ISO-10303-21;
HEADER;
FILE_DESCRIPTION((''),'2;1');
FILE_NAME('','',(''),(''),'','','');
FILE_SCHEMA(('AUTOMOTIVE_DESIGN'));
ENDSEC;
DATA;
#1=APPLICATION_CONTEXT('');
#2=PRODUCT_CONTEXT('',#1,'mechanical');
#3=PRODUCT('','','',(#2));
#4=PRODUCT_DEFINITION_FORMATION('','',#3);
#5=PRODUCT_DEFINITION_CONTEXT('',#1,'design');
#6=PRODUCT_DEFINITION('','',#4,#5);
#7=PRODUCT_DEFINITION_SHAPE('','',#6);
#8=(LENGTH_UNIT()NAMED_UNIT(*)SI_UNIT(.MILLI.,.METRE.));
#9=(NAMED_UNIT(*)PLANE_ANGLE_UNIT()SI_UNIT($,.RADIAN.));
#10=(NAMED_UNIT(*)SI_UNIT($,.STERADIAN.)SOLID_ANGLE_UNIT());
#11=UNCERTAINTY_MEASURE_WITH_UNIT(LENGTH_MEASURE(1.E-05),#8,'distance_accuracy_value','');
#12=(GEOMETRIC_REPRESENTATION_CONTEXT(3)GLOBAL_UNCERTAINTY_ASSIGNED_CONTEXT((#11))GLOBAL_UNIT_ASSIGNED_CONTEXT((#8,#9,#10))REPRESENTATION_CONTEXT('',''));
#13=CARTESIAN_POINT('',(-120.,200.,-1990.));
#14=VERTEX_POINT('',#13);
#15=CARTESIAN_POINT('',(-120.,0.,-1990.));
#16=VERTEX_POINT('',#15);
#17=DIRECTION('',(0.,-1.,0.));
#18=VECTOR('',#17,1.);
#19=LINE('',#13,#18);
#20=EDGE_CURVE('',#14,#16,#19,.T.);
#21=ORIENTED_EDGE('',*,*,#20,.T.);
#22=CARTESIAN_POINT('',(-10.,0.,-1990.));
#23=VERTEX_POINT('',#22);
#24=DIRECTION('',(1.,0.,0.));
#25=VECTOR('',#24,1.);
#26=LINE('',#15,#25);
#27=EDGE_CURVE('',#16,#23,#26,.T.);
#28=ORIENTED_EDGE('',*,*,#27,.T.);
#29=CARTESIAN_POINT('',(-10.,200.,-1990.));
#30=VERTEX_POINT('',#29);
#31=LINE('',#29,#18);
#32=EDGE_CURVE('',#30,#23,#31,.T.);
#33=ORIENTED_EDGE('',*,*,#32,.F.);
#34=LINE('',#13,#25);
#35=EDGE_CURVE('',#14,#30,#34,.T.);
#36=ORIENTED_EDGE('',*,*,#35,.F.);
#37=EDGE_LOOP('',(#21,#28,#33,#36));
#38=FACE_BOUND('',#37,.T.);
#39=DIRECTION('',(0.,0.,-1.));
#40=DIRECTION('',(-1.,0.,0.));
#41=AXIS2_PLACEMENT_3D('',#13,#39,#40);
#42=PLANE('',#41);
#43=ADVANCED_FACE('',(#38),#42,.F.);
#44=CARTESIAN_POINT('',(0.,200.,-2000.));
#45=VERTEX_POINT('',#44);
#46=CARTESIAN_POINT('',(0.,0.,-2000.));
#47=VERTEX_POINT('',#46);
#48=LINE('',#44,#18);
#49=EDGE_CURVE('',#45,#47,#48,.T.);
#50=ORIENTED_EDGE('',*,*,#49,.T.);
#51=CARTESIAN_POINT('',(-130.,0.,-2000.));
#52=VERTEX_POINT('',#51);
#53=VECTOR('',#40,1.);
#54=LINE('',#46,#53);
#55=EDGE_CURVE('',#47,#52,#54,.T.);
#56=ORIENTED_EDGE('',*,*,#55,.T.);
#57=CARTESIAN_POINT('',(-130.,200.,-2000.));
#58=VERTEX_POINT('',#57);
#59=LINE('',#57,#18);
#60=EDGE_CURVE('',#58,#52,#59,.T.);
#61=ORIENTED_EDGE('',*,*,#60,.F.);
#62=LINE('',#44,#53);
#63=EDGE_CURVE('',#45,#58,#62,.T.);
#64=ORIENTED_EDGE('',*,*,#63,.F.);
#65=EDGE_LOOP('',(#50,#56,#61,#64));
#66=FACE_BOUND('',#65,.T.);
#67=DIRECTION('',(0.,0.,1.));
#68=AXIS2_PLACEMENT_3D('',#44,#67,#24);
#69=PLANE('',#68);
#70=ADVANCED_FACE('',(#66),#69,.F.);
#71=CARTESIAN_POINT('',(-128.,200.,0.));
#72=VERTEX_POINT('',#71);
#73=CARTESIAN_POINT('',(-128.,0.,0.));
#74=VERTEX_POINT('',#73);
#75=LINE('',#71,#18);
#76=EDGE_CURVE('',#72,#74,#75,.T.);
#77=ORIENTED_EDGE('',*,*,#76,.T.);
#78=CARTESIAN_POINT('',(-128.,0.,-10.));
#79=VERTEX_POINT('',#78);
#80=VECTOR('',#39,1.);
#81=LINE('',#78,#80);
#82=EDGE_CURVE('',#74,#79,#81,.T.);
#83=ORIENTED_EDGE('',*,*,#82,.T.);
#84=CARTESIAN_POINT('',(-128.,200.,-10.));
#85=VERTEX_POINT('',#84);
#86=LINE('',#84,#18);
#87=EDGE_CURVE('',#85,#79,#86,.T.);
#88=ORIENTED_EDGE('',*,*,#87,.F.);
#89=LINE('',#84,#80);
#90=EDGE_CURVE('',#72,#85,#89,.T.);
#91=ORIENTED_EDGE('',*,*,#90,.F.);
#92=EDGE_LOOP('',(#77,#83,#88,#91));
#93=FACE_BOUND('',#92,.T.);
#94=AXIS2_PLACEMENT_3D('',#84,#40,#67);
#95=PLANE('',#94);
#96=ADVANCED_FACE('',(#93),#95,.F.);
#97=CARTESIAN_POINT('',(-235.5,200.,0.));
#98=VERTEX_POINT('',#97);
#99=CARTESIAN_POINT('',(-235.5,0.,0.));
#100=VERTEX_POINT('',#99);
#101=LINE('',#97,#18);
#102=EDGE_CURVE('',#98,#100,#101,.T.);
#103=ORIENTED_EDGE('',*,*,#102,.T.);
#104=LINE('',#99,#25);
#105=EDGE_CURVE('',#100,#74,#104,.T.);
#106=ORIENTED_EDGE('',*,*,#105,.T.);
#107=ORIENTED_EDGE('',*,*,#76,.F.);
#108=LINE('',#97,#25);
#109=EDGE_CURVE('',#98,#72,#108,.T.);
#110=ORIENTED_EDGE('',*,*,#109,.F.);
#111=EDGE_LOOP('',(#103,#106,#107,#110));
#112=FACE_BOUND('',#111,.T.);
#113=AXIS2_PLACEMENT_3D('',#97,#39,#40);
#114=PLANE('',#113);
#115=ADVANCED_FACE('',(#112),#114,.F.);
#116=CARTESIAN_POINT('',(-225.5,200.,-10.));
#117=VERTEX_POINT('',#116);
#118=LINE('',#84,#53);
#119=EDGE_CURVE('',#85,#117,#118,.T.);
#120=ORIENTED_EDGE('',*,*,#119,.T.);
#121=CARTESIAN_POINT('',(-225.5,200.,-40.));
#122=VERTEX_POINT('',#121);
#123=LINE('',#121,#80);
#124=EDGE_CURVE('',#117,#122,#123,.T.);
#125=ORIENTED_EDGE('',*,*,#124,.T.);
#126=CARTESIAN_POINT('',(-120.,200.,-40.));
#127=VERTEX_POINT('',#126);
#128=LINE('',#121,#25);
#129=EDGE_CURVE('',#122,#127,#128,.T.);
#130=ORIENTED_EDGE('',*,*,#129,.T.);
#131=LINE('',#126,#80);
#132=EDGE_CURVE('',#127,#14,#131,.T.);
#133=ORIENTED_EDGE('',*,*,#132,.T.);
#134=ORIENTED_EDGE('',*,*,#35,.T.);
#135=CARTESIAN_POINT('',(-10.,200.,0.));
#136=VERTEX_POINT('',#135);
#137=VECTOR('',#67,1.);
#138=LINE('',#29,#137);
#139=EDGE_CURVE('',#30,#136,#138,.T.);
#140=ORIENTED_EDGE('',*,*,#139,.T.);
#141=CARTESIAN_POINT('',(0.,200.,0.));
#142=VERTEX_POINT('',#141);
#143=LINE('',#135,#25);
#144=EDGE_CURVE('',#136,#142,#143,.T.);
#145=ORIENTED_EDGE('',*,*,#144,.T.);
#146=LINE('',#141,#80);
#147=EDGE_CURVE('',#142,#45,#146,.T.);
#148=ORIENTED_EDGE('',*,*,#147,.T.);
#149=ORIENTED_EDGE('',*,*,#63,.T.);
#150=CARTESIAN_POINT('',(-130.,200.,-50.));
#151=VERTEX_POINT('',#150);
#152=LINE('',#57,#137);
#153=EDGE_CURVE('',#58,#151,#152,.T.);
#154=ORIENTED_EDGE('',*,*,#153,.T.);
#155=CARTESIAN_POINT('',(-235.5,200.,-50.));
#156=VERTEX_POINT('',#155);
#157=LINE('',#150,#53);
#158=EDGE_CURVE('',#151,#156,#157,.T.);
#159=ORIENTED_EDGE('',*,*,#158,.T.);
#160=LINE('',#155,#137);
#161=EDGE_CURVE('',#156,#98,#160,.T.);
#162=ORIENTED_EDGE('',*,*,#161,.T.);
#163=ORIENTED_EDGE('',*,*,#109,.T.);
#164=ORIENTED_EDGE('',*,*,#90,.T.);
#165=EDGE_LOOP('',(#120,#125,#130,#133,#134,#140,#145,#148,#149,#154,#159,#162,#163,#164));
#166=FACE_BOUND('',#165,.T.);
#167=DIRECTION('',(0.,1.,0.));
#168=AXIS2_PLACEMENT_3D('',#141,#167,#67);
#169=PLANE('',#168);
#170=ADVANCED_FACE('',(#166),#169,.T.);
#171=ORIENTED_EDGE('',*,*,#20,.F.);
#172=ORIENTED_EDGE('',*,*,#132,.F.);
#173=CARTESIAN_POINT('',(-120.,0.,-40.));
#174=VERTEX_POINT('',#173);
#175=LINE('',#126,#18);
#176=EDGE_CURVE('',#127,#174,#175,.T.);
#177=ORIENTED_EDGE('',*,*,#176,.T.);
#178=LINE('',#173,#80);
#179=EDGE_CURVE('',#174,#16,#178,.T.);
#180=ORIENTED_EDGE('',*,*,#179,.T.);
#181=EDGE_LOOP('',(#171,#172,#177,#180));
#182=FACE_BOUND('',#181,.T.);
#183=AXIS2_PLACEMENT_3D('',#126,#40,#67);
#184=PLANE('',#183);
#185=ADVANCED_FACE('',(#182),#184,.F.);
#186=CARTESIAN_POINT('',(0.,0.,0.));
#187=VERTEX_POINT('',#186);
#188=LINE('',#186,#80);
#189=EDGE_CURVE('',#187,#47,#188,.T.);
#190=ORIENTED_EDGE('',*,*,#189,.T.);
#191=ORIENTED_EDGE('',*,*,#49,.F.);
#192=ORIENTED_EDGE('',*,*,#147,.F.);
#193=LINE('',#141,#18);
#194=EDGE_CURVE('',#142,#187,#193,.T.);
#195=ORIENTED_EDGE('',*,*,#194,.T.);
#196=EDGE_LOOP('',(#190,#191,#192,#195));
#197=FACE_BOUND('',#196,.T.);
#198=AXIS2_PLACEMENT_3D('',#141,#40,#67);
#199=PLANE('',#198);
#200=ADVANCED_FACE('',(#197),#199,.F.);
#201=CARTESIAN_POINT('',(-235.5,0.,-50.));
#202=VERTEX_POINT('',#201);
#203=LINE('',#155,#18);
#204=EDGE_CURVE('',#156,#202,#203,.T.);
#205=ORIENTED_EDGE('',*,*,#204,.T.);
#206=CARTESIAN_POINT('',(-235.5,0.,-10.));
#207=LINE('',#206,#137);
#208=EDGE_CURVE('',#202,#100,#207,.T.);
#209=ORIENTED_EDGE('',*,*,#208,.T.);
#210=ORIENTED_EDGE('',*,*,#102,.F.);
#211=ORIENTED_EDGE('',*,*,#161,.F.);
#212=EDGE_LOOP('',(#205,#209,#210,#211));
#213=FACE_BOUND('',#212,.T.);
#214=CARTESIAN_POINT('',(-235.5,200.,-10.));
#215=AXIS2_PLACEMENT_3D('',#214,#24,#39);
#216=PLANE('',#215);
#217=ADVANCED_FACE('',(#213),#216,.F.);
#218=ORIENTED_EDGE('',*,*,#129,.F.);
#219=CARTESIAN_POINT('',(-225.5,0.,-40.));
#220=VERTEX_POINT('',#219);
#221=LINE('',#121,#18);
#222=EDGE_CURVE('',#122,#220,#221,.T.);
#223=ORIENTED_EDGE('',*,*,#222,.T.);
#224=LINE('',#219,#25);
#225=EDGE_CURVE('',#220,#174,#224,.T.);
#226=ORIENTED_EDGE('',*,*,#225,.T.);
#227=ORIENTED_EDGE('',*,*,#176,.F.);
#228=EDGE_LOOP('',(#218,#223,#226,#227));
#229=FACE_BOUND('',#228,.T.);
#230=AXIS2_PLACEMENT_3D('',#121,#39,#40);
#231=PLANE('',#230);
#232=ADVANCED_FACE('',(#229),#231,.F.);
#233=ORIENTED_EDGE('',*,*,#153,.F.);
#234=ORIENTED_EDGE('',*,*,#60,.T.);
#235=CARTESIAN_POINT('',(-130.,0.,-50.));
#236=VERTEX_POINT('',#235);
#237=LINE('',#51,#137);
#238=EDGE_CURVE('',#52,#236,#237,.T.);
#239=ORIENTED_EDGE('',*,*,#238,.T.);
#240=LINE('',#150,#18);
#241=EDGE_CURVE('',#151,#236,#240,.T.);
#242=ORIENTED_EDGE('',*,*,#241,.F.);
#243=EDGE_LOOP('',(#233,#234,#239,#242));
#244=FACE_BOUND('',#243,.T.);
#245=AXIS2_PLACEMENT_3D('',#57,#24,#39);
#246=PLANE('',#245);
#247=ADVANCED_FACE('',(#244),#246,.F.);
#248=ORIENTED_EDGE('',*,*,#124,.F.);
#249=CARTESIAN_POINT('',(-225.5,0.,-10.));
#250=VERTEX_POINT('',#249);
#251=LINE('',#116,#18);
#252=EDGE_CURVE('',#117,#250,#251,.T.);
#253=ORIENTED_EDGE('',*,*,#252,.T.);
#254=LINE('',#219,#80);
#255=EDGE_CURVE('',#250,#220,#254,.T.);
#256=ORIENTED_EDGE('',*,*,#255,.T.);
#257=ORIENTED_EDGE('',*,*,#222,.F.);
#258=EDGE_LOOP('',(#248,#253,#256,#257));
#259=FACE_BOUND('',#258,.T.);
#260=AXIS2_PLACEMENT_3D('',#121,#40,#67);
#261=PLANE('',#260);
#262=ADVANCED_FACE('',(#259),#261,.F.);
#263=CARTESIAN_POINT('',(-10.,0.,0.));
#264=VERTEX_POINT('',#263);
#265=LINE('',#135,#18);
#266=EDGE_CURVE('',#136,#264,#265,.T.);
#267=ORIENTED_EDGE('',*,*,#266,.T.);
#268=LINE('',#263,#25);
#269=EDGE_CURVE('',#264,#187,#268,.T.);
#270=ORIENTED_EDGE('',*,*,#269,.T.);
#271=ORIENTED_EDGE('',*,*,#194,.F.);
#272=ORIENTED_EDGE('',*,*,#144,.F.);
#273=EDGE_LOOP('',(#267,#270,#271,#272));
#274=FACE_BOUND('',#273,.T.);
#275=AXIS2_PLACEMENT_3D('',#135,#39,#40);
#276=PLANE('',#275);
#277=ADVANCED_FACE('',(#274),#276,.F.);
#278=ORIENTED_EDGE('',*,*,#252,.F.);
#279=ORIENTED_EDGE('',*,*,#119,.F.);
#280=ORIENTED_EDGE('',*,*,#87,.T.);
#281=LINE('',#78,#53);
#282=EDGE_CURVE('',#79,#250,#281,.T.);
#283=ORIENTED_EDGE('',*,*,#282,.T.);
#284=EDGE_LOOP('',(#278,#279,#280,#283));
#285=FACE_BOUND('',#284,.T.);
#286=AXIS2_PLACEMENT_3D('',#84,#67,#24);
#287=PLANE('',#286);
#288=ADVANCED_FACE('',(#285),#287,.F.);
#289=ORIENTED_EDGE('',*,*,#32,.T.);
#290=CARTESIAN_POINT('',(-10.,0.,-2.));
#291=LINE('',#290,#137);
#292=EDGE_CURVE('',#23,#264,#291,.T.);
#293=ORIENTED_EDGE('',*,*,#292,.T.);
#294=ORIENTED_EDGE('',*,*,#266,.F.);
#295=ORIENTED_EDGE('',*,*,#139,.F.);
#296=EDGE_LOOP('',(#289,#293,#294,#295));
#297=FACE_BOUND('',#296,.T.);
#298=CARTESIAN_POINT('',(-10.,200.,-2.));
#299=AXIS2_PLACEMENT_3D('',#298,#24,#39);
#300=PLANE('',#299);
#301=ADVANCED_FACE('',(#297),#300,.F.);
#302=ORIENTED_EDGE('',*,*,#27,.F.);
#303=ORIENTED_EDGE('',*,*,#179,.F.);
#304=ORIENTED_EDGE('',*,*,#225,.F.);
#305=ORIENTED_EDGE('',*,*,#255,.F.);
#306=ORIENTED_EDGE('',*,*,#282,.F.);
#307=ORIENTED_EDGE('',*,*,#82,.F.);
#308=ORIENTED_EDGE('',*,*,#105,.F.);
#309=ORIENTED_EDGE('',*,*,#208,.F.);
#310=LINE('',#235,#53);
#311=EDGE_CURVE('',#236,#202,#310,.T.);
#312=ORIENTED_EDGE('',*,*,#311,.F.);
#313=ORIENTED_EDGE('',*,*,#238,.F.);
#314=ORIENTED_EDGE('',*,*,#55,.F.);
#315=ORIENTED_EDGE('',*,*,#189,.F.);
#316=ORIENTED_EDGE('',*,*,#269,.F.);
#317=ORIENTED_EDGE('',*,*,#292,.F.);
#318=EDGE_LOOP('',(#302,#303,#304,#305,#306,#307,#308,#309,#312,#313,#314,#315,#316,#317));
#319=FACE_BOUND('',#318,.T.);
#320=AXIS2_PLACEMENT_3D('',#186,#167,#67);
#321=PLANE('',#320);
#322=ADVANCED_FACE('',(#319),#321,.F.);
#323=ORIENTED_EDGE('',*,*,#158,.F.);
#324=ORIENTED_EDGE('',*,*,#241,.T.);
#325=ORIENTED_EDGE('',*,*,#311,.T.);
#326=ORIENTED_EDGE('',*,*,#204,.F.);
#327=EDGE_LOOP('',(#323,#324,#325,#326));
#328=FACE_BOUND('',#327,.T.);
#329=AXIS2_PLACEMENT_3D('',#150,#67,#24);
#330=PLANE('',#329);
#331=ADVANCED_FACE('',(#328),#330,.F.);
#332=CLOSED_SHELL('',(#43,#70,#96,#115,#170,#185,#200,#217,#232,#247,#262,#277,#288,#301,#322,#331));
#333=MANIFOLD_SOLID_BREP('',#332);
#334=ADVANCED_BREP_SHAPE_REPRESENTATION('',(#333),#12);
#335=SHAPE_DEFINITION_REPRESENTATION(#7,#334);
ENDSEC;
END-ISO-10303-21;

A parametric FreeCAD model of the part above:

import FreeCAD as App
import Part
import Sketcher

V = App.Vector

doc = App.newDocument("Part")
body = doc.addObject("PartDesign::Body", "Body")

# Sketch on XZ plane
sketch1 = doc.addObject("Sketcher::SketchObject", "Sketch")
body.addObject(sketch1)
sketch1.AttachmentSupport = (doc.XZ_Plane, [""])
sketch1.MapMode = "FlatFace"
sketch1.addGeometry([
    Part.LineSegment(V(0, 0, 0), V(0, -2000, 0)),  # 0
    Part.LineSegment(V(0, -2000, 0), V(-130, -2000, 0)),  # 1
    Part.LineSegment(V(-130, -2000, 0), V(-130, -50, 0)),  # 2
    Part.LineSegment(V(-130, -50, 0), V(-236, -50, 0)),  # 3
    Part.LineSegment(V(-236, -50, 0), V(-236, 0, 0)),  # 4
    Part.LineSegment(V(-236, 0, 0), V(-128, 0, 0)),  # 5
    Part.LineSegment(V(-128, 0, 0), V(-128, -10, 0)),  # 6
    Part.LineSegment(V(-128, -10, 0), V(-226, -10, 0)),  # 7
    Part.LineSegment(V(-226, -10, 0), V(-226, -40, 0)),  # 8
    Part.LineSegment(V(-226, -40, 0), V(-120, -40, 0)),  # 9
    Part.LineSegment(V(-120, -40, 0), V(-120, -1990, 0)),  # 10
    Part.LineSegment(V(-120, -1990, 0), V(-10, -1990, 0)),  # 11
    Part.LineSegment(V(-10, -1990, 0), V(-10, 0, 0)),  # 12
    Part.LineSegment(V(-10, 0, 0), V(0, 0, 0)),  # 13
], False)
sketch1.addConstraint([
    Sketcher.Constraint("Coincident", 0, 2, 1, 1),
    Sketcher.Constraint("Coincident", 1, 2, 2, 1),
    Sketcher.Constraint("Coincident", 2, 2, 3, 1),
    Sketcher.Constraint("Coincident", 3, 2, 4, 1),
    Sketcher.Constraint("Coincident", 4, 2, 5, 1),
    Sketcher.Constraint("Coincident", 5, 2, 6, 1),
    Sketcher.Constraint("Coincident", 6, 2, 7, 1),
    Sketcher.Constraint("Coincident", 7, 2, 8, 1),
    Sketcher.Constraint("Coincident", 8, 2, 9, 1),
    Sketcher.Constraint("Coincident", 9, 2, 10, 1),
    Sketcher.Constraint("Coincident", 10, 2, 11, 1),
    Sketcher.Constraint("Coincident", 11, 2, 12, 1),
    Sketcher.Constraint("Coincident", 12, 2, 13, 1),
    Sketcher.Constraint("Coincident", 13, 2, 0, 1),
    Sketcher.Constraint("Vertical", 0),
    Sketcher.Constraint("Horizontal", 1),
    Sketcher.Constraint("Vertical", 2),
    Sketcher.Constraint("Horizontal", 3),
    Sketcher.Constraint("Vertical", 4),
    Sketcher.Constraint("Horizontal", 5),
    Sketcher.Constraint("Vertical", 6),
    Sketcher.Constraint("Horizontal", 7),
    Sketcher.Constraint("Vertical", 8),
    Sketcher.Constraint("Horizontal", 9),
    Sketcher.Constraint("Vertical", 10),
    Sketcher.Constraint("Horizontal", 11),
    Sketcher.Constraint("Vertical", 12),
    Sketcher.Constraint("Horizontal", 13),
    Sketcher.Constraint("Coincident", 13, 2, -1, 1),
    Sketcher.Constraint("PointOnObject", 4, 2, -1),
    Sketcher.Constraint("Equal", 3, 9),
    Sketcher.Constraint("Equal", 13, 6),
    Sketcher.Constraint("Equal", 2, 10),
    Sketcher.Constraint("DistanceX", 1, 2, 1, 1, 130.0),
    Sketcher.Constraint("DistanceX", 11, 1, 11, 2, 110.0),
    Sketcher.Constraint("DistanceX", 13, 1, 13, 2, 10.0),
    Sketcher.Constraint("DistanceY", 0, 2, 0, 1, 2000.0),
    Sketcher.Constraint("DistanceY", 2, 1, 2, 2, 1950.0),
    Sketcher.Constraint("DistanceY", 8, 2, 8, 1, 30.0),
    Sketcher.Constraint("DistanceX", 3, 2, 3, 1, 105.5),
    Sketcher.Constraint("DistanceX", 5, 1, 5, 2, 107.5),
])
pad1 = doc.addObject("PartDesign::Pad", "Pad")
body.addObject(pad1)
pad1.Profile = sketch1
pad1.Length = 200
pad1.Reversed = True

doc.recompute()
